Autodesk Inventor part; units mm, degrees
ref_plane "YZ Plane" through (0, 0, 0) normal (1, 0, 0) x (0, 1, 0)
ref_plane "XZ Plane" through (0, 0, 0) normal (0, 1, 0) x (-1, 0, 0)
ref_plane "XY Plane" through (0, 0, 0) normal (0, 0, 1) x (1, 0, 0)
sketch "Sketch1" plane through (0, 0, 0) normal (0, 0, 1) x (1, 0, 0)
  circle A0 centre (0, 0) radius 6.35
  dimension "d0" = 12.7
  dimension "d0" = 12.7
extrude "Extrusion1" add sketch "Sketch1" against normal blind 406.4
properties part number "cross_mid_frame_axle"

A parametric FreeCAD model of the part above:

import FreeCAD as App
import Part
import Sketcher
from FreeCAD import Vector
Q = App.Units.Quantity

doc = App.newDocument("Part")
body = doc.addObject("PartDesign::Body", "Body")

# Sketch on XY plane
sketch1 = body.newObject("Sketcher::SketchObject", "Sketch")
sketch1.AttachmentSupport = (doc.getObject("XY_Plane"), [""])
sketch1.MapMode = "FlatFace"
sketch1.addGeometry(Part.Circle(Vector(0, 0, 0), Vector(0, 0, 1), 6), False)
sketch1.addConstraint(Sketcher.Constraint("Coincident", 0, 3, -1, 1))
sketch1.addConstraint(Sketcher.Constraint("Diameter", 0, Q("0.5 in")))
pad1 = body.newObject("PartDesign::Pad", "Pad")
pad1.Profile = sketch1
pad1.Length = Q("16 in")
pad1.Reversed = True

doc.recompute()
